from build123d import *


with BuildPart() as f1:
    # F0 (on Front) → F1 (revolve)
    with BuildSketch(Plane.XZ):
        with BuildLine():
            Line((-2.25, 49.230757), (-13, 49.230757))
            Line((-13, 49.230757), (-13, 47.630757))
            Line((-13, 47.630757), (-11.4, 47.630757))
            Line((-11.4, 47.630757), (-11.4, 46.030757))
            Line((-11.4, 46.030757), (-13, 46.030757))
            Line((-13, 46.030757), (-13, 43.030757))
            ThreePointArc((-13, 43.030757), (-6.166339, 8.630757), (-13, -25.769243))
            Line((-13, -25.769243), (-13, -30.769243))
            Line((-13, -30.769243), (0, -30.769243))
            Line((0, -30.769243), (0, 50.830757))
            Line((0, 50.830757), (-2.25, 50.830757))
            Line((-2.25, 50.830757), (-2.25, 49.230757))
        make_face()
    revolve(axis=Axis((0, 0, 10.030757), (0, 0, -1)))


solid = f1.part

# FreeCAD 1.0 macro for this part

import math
import FreeCAD as App
import Part
import Sketcher
from FreeCAD import Vector
Q = App.Units.Quantity

doc = App.newDocument("Part")
body = doc.addObject("PartDesign::Body", "Body")

sketch1 = body.newObject("Sketcher::SketchObject", "Sketch")
sketch1.AttachmentSupport = (doc.getObject("XZ_Plane"), [""])
sketch1.MapMode = "FlatFace"
sketch1.addGeometry([
    Part.LineSegment(Vector(-2.25, 49.230757, 0), Vector(-13, 49.230757, 0)),
    Part.LineSegment(Vector(-13, 49.230757, 0), Vector(-13, 47.630757, 0)),
    Part.LineSegment(Vector(-13, 47.630757, 0), Vector(-11.4, 47.630757, 0)),
    Part.LineSegment(Vector(-11.4, 47.630757, 0), Vector(-11.4, 46.030757, 0)),
    Part.LineSegment(Vector(-11.4, 46.030757, 0), Vector(-13, 46.030757, 0)),
    Part.LineSegment(Vector(-13, 46.030757, 0), Vector(-13, 43.030757, 0)),
    Part.ArcOfCircle(Part.Circle(Vector(-96.166335, 8.630757, 0), Vector(0, 0, 1), 89.999996), math.radians(-22.471401), math.radians(22.471401)),
    Part.LineSegment(Vector(-13, -25.769243, 0), Vector(-13, -30.769243, 0)),
    Part.LineSegment(Vector(-13, -30.769243, 0), Vector(0, -30.769243, 0)),
    Part.LineSegment(Vector(0, -30.769243, 0), Vector(0, 50.830757, 0)),
    Part.LineSegment(Vector(0, 50.830757, 0), Vector(-2.25, 50.830757, 0)),
    Part.LineSegment(Vector(-2.25, 50.830757, 0), Vector(-2.25, 49.230757, 0)),
], False)
sketch1.addConstraint([
    Sketcher.Constraint("Coincident", 0, 2, 1, 1),
    Sketcher.Constraint("Coincident", 1, 2, 2, 1),
    Sketcher.Constraint("Coincident", 2, 2, 3, 1),
    Sketcher.Constraint("Coincident", 3, 2, 4, 1),
    Sketcher.Constraint("Coincident", 4, 2, 5, 1),
    Sketcher.Constraint("Coincident", 5, 2, 6, 2),
    Sketcher.Constraint("Coincident", 6, 1, 7, 1),
    Sketcher.Constraint("Coincident", 7, 2, 8, 1),
    Sketcher.Constraint("Coincident", 8, 2, 9, 1),
    Sketcher.Constraint("Coincident", 9, 2, 10, 1),
    Sketcher.Constraint("Coincident", 10, 2, 11, 1),
    Sketcher.Constraint("Coincident", 11, 2, 0, 1),
    Sketcher.Constraint("Horizontal", 0),
    Sketcher.Constraint("Vertical", 1),
    Sketcher.Constraint("Horizontal", 2),
    Sketcher.Constraint("Vertical", 3),
    Sketcher.Constraint("Horizontal", 4),
    Sketcher.Constraint("Vertical", 5),
    Sketcher.Constraint("Vertical", 7),
    Sketcher.Constraint("Horizontal", 8),
    Sketcher.Constraint("Vertical", 9),
    Sketcher.Constraint("Horizontal", 10),
    Sketcher.Constraint("Vertical", 11),
    Sketcher.Constraint("PointOnObject", 8, 2, -2),
    Sketcher.Constraint("Vertical", 1, 2, 4, 2),
    Sketcher.Constraint("Vertical", 5, 2, 6, 1),
    Sketcher.Constraint("Equal", 4, 1),
    Sketcher.Constraint("Equal", 1, 3),
    Sketcher.Constraint("Equal", 3, 11),
    Sketcher.Constraint("DistanceX", 8, 1, 8, 2, Q("13 mm")),
    Sketcher.Constraint("DistanceY", 5, 2, 5, 1, Q("3 mm")),
    Sketcher.Constraint("DistanceY", 7, 2, 7, 1, Q("5 mm")),
    Sketcher.Constraint("DistanceX", 2, 1, 2, 2, Q("1.6 mm")),
    Sketcher.Constraint("DistanceY", 9, 1, 9, 2, Q("81.6 mm")),
    Sketcher.Constraint("DistanceX", 0, 2, 0, 1, Q("10.75 mm")),
    Sketcher.Constraint("Radius", 6, Q("89.999996 mm")),
    Sketcher.Constraint("DistanceY", -1, 1, 6, 3, Q("8.630757 mm")),
])
revolution = body.newObject("PartDesign::Revolution", "Revolution")
revolution.Profile = sketch1
revolution.ReferenceAxis = (sketch1, ["V_Axis"])
revolution.Angle = 360

doc.recompute()
